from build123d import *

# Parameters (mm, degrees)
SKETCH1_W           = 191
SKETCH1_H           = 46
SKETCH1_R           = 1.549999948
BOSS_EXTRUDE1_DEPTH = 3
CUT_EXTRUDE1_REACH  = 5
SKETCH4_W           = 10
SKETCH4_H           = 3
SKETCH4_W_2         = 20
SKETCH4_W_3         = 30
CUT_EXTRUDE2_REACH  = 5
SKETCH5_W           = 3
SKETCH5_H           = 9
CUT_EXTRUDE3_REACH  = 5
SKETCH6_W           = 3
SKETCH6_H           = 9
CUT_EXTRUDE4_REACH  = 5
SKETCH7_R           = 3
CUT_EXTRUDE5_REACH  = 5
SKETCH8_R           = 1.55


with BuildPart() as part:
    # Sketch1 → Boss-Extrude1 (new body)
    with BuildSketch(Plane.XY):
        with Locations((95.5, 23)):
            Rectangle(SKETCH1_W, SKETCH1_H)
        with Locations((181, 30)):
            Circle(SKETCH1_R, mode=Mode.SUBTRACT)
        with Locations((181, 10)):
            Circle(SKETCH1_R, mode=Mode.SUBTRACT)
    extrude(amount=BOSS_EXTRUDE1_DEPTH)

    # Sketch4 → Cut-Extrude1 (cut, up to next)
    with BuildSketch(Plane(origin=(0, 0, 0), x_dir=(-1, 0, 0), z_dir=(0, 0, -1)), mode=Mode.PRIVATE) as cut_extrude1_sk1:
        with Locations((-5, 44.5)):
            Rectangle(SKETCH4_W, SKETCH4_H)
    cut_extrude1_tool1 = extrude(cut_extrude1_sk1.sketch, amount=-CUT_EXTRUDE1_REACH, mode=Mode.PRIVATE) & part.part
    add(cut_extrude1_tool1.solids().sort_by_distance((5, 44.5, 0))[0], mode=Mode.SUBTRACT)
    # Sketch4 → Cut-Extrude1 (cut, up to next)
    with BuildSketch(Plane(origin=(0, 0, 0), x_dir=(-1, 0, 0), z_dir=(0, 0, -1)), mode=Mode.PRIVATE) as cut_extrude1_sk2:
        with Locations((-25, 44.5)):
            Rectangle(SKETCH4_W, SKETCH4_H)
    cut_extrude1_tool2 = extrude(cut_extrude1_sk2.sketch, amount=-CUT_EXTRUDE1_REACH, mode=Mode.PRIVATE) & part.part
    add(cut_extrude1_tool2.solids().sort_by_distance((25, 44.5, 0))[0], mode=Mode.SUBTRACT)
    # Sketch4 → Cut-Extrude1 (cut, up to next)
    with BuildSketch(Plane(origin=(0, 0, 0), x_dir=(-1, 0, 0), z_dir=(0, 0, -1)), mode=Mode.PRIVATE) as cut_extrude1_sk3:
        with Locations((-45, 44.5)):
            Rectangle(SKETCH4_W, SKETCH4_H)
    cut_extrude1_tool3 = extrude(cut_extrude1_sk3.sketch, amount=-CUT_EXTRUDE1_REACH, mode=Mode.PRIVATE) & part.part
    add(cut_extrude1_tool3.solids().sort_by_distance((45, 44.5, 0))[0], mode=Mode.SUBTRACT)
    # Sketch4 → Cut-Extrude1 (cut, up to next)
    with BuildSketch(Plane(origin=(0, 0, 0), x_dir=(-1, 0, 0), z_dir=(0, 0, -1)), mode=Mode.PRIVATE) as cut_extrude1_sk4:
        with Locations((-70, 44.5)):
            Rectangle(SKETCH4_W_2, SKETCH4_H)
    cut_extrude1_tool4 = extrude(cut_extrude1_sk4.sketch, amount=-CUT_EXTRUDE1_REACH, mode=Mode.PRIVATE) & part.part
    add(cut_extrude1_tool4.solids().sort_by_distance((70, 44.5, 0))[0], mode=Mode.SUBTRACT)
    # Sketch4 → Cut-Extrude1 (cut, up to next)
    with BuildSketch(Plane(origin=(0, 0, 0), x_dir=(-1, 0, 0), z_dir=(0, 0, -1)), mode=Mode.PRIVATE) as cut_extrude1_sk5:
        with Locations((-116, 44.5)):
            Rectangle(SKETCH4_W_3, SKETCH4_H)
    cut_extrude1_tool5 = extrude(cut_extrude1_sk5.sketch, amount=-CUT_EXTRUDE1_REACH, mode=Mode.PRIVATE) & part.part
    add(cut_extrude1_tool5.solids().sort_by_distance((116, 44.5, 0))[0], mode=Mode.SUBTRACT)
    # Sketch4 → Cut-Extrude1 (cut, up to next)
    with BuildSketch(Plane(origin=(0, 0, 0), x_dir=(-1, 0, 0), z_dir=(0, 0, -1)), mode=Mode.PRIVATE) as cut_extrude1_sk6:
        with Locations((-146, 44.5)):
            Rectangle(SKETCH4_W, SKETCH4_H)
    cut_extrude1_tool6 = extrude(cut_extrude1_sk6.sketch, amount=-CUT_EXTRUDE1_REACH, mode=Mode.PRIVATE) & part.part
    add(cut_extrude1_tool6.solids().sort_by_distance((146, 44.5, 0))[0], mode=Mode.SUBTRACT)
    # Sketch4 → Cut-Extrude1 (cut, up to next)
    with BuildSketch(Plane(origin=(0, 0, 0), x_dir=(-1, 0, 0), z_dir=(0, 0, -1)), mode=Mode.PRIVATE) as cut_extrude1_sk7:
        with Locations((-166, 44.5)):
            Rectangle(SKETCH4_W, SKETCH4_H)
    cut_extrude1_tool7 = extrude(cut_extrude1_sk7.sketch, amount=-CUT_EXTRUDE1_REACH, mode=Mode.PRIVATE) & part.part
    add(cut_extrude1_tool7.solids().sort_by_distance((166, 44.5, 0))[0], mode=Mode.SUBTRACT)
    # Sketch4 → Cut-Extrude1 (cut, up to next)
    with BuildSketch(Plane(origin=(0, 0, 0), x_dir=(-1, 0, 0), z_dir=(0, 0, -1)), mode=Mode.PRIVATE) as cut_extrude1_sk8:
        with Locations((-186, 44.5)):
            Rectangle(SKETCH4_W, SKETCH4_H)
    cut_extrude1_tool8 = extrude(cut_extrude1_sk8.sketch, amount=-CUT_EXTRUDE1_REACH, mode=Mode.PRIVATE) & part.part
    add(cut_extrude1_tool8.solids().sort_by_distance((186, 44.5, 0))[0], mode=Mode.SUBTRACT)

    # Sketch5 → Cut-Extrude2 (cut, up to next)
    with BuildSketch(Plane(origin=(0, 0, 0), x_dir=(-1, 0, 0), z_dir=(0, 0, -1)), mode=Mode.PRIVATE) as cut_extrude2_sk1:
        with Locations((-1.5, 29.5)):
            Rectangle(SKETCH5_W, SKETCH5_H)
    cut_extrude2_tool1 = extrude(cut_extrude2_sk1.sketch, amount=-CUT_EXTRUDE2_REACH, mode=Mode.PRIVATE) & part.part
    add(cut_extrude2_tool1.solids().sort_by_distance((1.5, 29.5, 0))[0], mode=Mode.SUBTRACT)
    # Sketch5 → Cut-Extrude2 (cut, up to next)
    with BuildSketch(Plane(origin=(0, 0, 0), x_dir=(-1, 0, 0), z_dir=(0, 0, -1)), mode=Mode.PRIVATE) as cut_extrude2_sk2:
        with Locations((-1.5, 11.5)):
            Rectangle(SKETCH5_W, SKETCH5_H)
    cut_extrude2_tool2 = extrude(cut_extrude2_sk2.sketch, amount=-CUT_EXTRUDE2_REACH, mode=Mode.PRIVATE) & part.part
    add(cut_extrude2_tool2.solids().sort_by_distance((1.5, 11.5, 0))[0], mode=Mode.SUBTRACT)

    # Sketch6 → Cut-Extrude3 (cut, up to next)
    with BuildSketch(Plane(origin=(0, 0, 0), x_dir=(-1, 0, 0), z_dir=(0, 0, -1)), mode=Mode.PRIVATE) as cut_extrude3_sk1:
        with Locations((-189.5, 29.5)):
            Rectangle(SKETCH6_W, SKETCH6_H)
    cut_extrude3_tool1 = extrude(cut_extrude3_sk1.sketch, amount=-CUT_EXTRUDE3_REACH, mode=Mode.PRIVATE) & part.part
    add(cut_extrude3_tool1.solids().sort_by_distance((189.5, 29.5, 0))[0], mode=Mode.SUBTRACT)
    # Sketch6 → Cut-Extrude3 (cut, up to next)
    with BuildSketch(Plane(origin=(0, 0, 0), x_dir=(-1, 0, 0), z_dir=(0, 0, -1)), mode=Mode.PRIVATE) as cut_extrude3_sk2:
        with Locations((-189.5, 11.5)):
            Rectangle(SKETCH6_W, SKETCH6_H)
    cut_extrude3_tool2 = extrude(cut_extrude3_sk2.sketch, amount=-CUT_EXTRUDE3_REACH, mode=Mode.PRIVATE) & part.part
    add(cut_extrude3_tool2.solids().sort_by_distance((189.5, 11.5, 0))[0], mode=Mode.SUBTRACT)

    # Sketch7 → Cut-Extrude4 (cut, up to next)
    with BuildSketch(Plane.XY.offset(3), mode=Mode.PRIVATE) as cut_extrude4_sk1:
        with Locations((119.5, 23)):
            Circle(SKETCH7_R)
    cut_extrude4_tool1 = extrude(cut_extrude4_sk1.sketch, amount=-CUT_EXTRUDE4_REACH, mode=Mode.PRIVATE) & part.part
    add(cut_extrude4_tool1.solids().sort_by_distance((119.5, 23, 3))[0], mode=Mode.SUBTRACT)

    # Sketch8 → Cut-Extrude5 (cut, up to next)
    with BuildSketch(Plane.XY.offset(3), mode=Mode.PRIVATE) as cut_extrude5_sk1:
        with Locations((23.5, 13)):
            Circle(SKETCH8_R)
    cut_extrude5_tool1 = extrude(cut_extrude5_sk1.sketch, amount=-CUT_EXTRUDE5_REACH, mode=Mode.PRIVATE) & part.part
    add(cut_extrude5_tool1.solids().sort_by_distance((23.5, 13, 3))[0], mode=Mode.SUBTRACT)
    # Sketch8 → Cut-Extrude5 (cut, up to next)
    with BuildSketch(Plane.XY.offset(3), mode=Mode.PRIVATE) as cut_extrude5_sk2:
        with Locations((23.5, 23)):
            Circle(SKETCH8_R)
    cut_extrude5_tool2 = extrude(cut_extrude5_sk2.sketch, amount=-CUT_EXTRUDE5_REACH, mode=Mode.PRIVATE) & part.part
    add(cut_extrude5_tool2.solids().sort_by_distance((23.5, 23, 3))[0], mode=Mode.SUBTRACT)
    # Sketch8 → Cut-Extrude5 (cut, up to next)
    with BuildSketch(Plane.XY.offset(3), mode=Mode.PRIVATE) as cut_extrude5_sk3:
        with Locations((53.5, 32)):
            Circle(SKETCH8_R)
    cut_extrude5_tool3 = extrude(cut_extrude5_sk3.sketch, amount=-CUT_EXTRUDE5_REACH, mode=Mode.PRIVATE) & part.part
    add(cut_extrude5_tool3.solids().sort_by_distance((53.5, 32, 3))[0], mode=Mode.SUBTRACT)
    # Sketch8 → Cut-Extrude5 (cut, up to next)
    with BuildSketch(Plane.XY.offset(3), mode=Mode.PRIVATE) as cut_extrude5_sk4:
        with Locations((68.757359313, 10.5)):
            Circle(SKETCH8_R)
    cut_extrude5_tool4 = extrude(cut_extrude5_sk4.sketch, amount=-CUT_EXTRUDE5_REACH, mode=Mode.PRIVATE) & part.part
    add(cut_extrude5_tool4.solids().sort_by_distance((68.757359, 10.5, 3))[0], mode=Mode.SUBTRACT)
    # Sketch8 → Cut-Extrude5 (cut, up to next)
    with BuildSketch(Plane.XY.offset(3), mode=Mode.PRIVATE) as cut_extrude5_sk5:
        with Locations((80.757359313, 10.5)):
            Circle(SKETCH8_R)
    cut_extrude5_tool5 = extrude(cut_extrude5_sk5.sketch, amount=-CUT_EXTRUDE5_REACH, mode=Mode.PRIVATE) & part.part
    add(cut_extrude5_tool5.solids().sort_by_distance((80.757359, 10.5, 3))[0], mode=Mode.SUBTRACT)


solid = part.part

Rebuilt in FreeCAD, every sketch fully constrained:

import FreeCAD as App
import Part
import Sketcher
Q = App.Units.Quantity


def add_polygon(sketch, points):
    """Adds a closed chain of lines whose ends are joined by coincident constraints."""
    first, n = sketch.GeometryCount, len(points)
    for a, b in zip(points, points[1:] + points[:1]):
        sketch.addGeometry(Part.LineSegment(App.Vector(*a, 0), App.Vector(*b, 0)), False)
    for i in range(n):
        sketch.addConstraint(Sketcher.Constraint("Coincident", first + i, 2, first + (i + 1) % n, 1))

doc = App.newDocument("Part")
body = doc.addObject("PartDesign::Body", "Body")

sketch1 = body.newObject("Sketcher::SketchObject", "Sketch")
sketch1.AttachmentSupport = (doc.getObject("XY_Plane"), [""])
sketch1.MapMode = "FlatFace"
add_polygon(sketch1, [(0, 46), (0, 0), (191, 0), (191, 46)])
sketch1.addGeometry(Part.Circle(App.Vector(181, 10, 0), App.Vector(0, 0, 1), 1.5), False)
sketch1.addGeometry(Part.Circle(App.Vector(181, 30, 0), App.Vector(0, 0, 1), 1.5), False)
sketch1.addConstraint([
    Sketcher.Constraint("Vertical", 0),
    Sketcher.Constraint("Horizontal", 1),
    Sketcher.Constraint("Vertical", 2),
    Sketcher.Constraint("Horizontal", 3),
    Sketcher.Constraint("Coincident", 0, 2, -1, 1),
    Sketcher.Constraint("Equal", 4, 5),
    Sketcher.Constraint("Vertical", 4, 3, 5, 3),
    Sketcher.Constraint("Diameter", 4, Q("3.1 mm")),
    Sketcher.Constraint("DistanceX", 1, 1, 1, 2, Q("191 mm")),
    Sketcher.Constraint("DistanceY", 0, 2, 0, 1, Q("46 mm")),
    Sketcher.Constraint("DistanceX", -1, 1, 4, 3, Q("181 mm")),
    Sketcher.Constraint("DistanceY", -1, 1, 4, 3, Q("10 mm")),
    Sketcher.Constraint("DistanceY", -1, 1, 5, 3, Q("30 mm")),
])
pad1 = body.newObject("PartDesign::Pad", "Pad")
pad1.Profile = sketch1
pad1.Length = 3

sketch2 = body.newObject("Sketcher::SketchObject", "Sketch001")
sketch2.AttachmentSupport = (doc.getObject("XY_Plane"), [""])
sketch2.MapMode = "FlatFace"
add_polygon(sketch2, [(10, 46), (10, 43), (0, 43), (0, 46)])
sketch2.addConstraint([
    Sketcher.Constraint("Vertical", 0),
    Sketcher.Constraint("Horizontal", 1),
    Sketcher.Constraint("Vertical", 2),
    Sketcher.Constraint("Horizontal", 3),
    Sketcher.Constraint("PointOnObject", 1, 2, -2),
    Sketcher.Constraint("DistanceX", 1, 2, 1, 1, Q("10 mm")),
    Sketcher.Constraint("DistanceY", 0, 2, 0, 1, Q("3 mm")),
    Sketcher.Constraint("DistanceY", -1, 1, 0, 2, Q("43 mm")),
])
pocket1 = body.newObject("PartDesign::Pocket", "Pocket")
pocket1.Profile = sketch2
pocket1.Type = "UpToFirst"
pocket1.Reversed = True

sketch3 = body.newObject("Sketcher::SketchObject", "Sketch002")
sketch3.AttachmentSupport = (doc.getObject("XY_Plane"), [""])
sketch3.MapMode = "FlatFace"
add_polygon(sketch3, [(30, 46), (30, 43), (20, 43), (20, 46)])
sketch3.addConstraint([
    Sketcher.Constraint("Vertical", 0),
    Sketcher.Constraint("Horizontal", 1),
    Sketcher.Constraint("Vertical", 2),
    Sketcher.Constraint("Horizontal", 3),
    Sketcher.Constraint("DistanceX", 1, 2, 1, 1, Q("10 mm")),
    Sketcher.Constraint("DistanceY", 0, 2, 0, 1, Q("3 mm")),
    Sketcher.Constraint("DistanceX", -1, 1, 0, 2, Q("30 mm")),
    Sketcher.Constraint("DistanceY", -1, 1, 0, 2, Q("43 mm")),
])
pocket2 = body.newObject("PartDesign::Pocket", "Pocket001")
pocket2.Profile = sketch3
pocket2.Type = "UpToFirst"
pocket2.Reversed = True

sketch4 = body.newObject("Sketcher::SketchObject", "Sketch003")
sketch4.AttachmentSupport = (doc.getObject("XY_Plane"), [""])
sketch4.MapMode = "FlatFace"
add_polygon(sketch4, [(50, 46), (50, 43), (40, 43), (40, 46)])
sketch4.addConstraint([
    Sketcher.Constraint("Vertical", 0),
    Sketcher.Constraint("Horizontal", 1),
    Sketcher.Constraint("Vertical", 2),
    Sketcher.Constraint("Horizontal", 3),
    Sketcher.Constraint("DistanceX", 1, 2, 1, 1, Q("10 mm")),
    Sketcher.Constraint("DistanceY", 0, 2, 0, 1, Q("3 mm")),
    Sketcher.Constraint("DistanceX", -1, 1, 0, 2, Q("50 mm")),
    Sketcher.Constraint("DistanceY", -1, 1, 0, 2, Q("43 mm")),
])
pocket3 = body.newObject("PartDesign::Pocket", "Pocket002")
pocket3.Profile = sketch4
pocket3.Type = "UpToFirst"
pocket3.Reversed = True

sketch5 = body.newObject("Sketcher::SketchObject", "Sketch004")
sketch5.AttachmentSupport = (doc.getObject("XY_Plane"), [""])
sketch5.MapMode = "FlatFace"
add_polygon(sketch5, [(80, 46), (80, 43), (60, 43), (60, 46)])
sketch5.addConstraint([
    Sketcher.Constraint("Vertical", 0),
    Sketcher.Constraint("Horizontal", 1),
    Sketcher.Constraint("Vertical", 2),
    Sketcher.Constraint("Horizontal", 3),
    Sketcher.Constraint("DistanceX", 1, 2, 1, 1, Q("20 mm")),
    Sketcher.Constraint("DistanceY", 0, 2, 0, 1, Q("3 mm")),
    Sketcher.Constraint("DistanceX", -1, 1, 0, 2, Q("80 mm")),
    Sketcher.Constraint("DistanceY", -1, 1, 0, 2, Q("43 mm")),
])
pocket4 = body.newObject("PartDesign::Pocket", "Pocket003")
pocket4.Profile = sketch5
pocket4.Type = "UpToFirst"
pocket4.Reversed = True

sketch6 = body.newObject("Sketcher::SketchObject", "Sketch005")
sketch6.AttachmentSupport = (doc.getObject("XY_Plane"), [""])
sketch6.MapMode = "FlatFace"
add_polygon(sketch6, [(131, 46), (131, 43), (101, 43), (101, 46)])
sketch6.addConstraint([
    Sketcher.Constraint("Vertical", 0),
    Sketcher.Constraint("Horizontal", 1),
    Sketcher.Constraint("Vertical", 2),
    Sketcher.Constraint("Horizontal", 3),
    Sketcher.Constraint("DistanceX", 1, 2, 1, 1, Q("30 mm")),
    Sketcher.Constraint("DistanceY", 0, 2, 0, 1, Q("3 mm")),
    Sketcher.Constraint("DistanceX", -1, 1, 0, 2, Q("131 mm")),
    Sketcher.Constraint("DistanceY", -1, 1, 0, 2, Q("43 mm")),
])
pocket5 = body.newObject("PartDesign::Pocket", "Pocket004")
pocket5.Profile = sketch6
pocket5.Type = "UpToFirst"
pocket5.Reversed = True

sketch7 = body.newObject("Sketcher::SketchObject", "Sketch006")
sketch7.AttachmentSupport = (doc.getObject("XY_Plane"), [""])
sketch7.MapMode = "FlatFace"
add_polygon(sketch7, [(151, 46), (151, 43), (141, 43), (141, 46)])
sketch7.addConstraint([
    Sketcher.Constraint("Vertical", 0),
    Sketcher.Constraint("Horizontal", 1),
    Sketcher.Constraint("Vertical", 2),
    Sketcher.Constraint("Horizontal", 3),
    Sketcher.Constraint("DistanceX", 1, 2, 1, 1, Q("10 mm")),
    Sketcher.Constraint("DistanceY", 0, 2, 0, 1, Q("3 mm")),
    Sketcher.Constraint("DistanceX", -1, 1, 0, 2, Q("151 mm")),
    Sketcher.Constraint("DistanceY", -1, 1, 0, 2, Q("43 mm")),
])
pocket6 = body.newObject("PartDesign::Pocket", "Pocket005")
pocket6.Profile = sketch7
pocket6.Type = "UpToFirst"
pocket6.Reversed = True

sketch8 = body.newObject("Sketcher::SketchObject", "Sketch007")
sketch8.AttachmentSupport = (doc.getObject("XY_Plane"), [""])
sketch8.MapMode = "FlatFace"
add_polygon(sketch8, [(171, 46), (171, 43), (161, 43), (161, 46)])
sketch8.addConstraint([
    Sketcher.Constraint("Vertical", 0),
    Sketcher.Constraint("Horizontal", 1),
    Sketcher.Constraint("Vertical", 2),
    Sketcher.Constraint("Horizontal", 3),
    Sketcher.Constraint("DistanceX", 1, 2, 1, 1, Q("10 mm")),
    Sketcher.Constraint("DistanceY", 0, 2, 0, 1, Q("3 mm")),
    Sketcher.Constraint("DistanceX", -1, 1, 0, 2, Q("171 mm")),
    Sketcher.Constraint("DistanceY", -1, 1, 0, 2, Q("43 mm")),
])
pocket7 = body.newObject("PartDesign::Pocket", "Pocket006")
pocket7.Profile = sketch8
pocket7.Type = "UpToFirst"
pocket7.Reversed = True

sketch9 = body.newObject("Sketcher::SketchObject", "Sketch008")
sketch9.AttachmentSupport = (doc.getObject("XY_Plane"), [""])
sketch9.MapMode = "FlatFace"
add_polygon(sketch9, [(191, 46), (191, 43), (181, 43), (181, 46)])
sketch9.addConstraint([
    Sketcher.Constraint("Vertical", 0),
    Sketcher.Constraint("Horizontal", 1),
    Sketcher.Constraint("Vertical", 2),
    Sketcher.Constraint("Horizontal", 3),
    Sketcher.Constraint("DistanceX", 1, 2, 1, 1, Q("10 mm")),
    Sketcher.Constraint("DistanceY", 0, 2, 0, 1, Q("3 mm")),
    Sketcher.Constraint("DistanceX", -1, 1, 0, 2, Q("191 mm")),
    Sketcher.Constraint("DistanceY", -1, 1, 0, 2, Q("43 mm")),
])
pocket8 = body.newObject("PartDesign::Pocket", "Pocket007")
pocket8.Profile = sketch9
pocket8.Type = "UpToFirst"
pocket8.Reversed = True

sketch10 = body.newObject("Sketcher::SketchObject", "Sketch009")
sketch10.AttachmentSupport = (doc.getObject("XY_Plane"), [""])
sketch10.MapMode = "FlatFace"
add_polygon(sketch10, [(3, 34), (3, 25), (0, 25), (0, 34)])
sketch10.addConstraint([
    Sketcher.Constraint("Vertical", 0),
    Sketcher.Constraint("Horizontal", 1),
    Sketcher.Constraint("Vertical", 2),
    Sketcher.Constraint("Horizontal", 3),
    Sketcher.Constraint("PointOnObject", 1, 2, -2),
    Sketcher.Constraint("DistanceX", 1, 2, 1, 1, Q("3 mm")),
    Sketcher.Constraint("DistanceY", 0, 2, 0, 1, Q("9 mm")),
    Sketcher.Constraint("DistanceY", -1, 1, 0, 2, Q("25 mm")),
])
pocket9 = body.newObject("PartDesign::Pocket", "Pocket008")
pocket9.Profile = sketch10
pocket9.Type = "UpToFirst"
pocket9.Reversed = True

sketch11 = body.newObject("Sketcher::SketchObject", "Sketch010")
sketch11.AttachmentSupport = (doc.getObject("XY_Plane"), [""])
sketch11.MapMode = "FlatFace"
add_polygon(sketch11, [(3, 16), (3, 7), (0, 7), (0, 16)])
sketch11.addConstraint([
    Sketcher.Constraint("Vertical", 0),
    Sketcher.Constraint("Horizontal", 1),
    Sketcher.Constraint("Vertical", 2),
    Sketcher.Constraint("Horizontal", 3),
    Sketcher.Constraint("PointOnObject", 1, 2, -2),
    Sketcher.Constraint("DistanceX", 1, 2, 1, 1, Q("3 mm")),
    Sketcher.Constraint("DistanceY", 0, 2, 0, 1, Q("9 mm")),
    Sketcher.Constraint("DistanceY", -1, 1, 0, 2, Q("7 mm")),
])
pocket10 = body.newObject("PartDesign::Pocket", "Pocket009")
pocket10.Profile = sketch11
pocket10.Type = "UpToFirst"
pocket10.Reversed = True

sketch12 = body.newObject("Sketcher::SketchObject", "Sketch011")
sketch12.AttachmentSupport = (doc.getObject("XY_Plane"), [""])
sketch12.MapMode = "FlatFace"
add_polygon(sketch12, [(191, 34), (191, 25), (188, 25), (188, 34)])
sketch12.addConstraint([
    Sketcher.Constraint("Vertical", 0),
    Sketcher.Constraint("Horizontal", 1),
    Sketcher.Constraint("Vertical", 2),
    Sketcher.Constraint("Horizontal", 3),
    Sketcher.Constraint("DistanceX", 1, 2, 1, 1, Q("3 mm")),
    Sketcher.Constraint("DistanceY", 0, 2, 0, 1, Q("9 mm")),
    Sketcher.Constraint("DistanceX", -1, 1, 0, 2, Q("191 mm")),
    Sketcher.Constraint("DistanceY", -1, 1, 0, 2, Q("25 mm")),
])
pocket11 = body.newObject("PartDesign::Pocket", "Pocket010")
pocket11.Profile = sketch12
pocket11.Type = "UpToFirst"
pocket11.Reversed = True

sketch13 = body.newObject("Sketcher::SketchObject", "Sketch012")
sketch13.AttachmentSupport = (doc.getObject("XY_Plane"), [""])
sketch13.MapMode = "FlatFace"
add_polygon(sketch13, [(191, 16), (191, 7), (188, 7), (188, 16)])
sketch13.addConstraint([
    Sketcher.Constraint("Vertical", 0),
    Sketcher.Constraint("Horizontal", 1),
    Sketcher.Constraint("Vertical", 2),
    Sketcher.Constraint("Horizontal", 3),
    Sketcher.Constraint("DistanceX", 1, 2, 1, 1, Q("3 mm")),
    Sketcher.Constraint("DistanceY", 0, 2, 0, 1, Q("9 mm")),
    Sketcher.Constraint("DistanceX", -1, 1, 0, 2, Q("191 mm")),
    Sketcher.Constraint("DistanceY", -1, 1, 0, 2, Q("7 mm")),
])
pocket12 = body.newObject("PartDesign::Pocket", "Pocket011")
pocket12.Profile = sketch13
pocket12.Type = "UpToFirst"
pocket12.Reversed = True

sketch14 = body.newObject("Sketcher::SketchObject", "Sketch013")
sketch14.AttachmentSupport = (doc.getObject("XY_Plane"), [""])
sketch14.MapMode = "FlatFace"
sketch14.AttachmentOffset = App.Placement(App.Vector(0, 0, 3), App.Rotation())
sketch14.addGeometry(Part.Circle(App.Vector(119.5, 23, 0), App.Vector(0, 0, 1), 3), False)
sketch14.addConstraint([
    Sketcher.Constraint("Diameter", 0, Q("6 mm")),
    Sketcher.Constraint("DistanceY", -1, 1, 0, 3, Q("23 mm")),
    Sketcher.Constraint("DistanceX", -1, 1, 0, 3, Q("119.5 mm")),
])
pocket13 = body.newObject("PartDesign::Pocket", "Pocket012")
pocket13.Profile = sketch14
pocket13.Type = "UpToFirst"

sketch15 = body.newObject("Sketcher::SketchObject", "Sketch014")
sketch15.AttachmentSupport = (doc.getObject("XY_Plane"), [""])
sketch15.MapMode = "FlatFace"
sketch15.AttachmentOffset = App.Placement(App.Vector(0, 0, 3), App.Rotation())
sketch15.addGeometry(Part.Circle(App.Vector(23.5, 13, 0), App.Vector(0, 0, 1), 1.6), False)
sketch15.addConstraint([
    Sketcher.Constraint("Diameter", 0, Q("3.1 mm")),
    Sketcher.Constraint("DistanceY", -1, 1, 0, 3, Q("13 mm")),
    Sketcher.Constraint("DistanceX", -1, 1, 0, 3, Q("23.5 mm")),
])
pocket14 = body.newObject("PartDesign::Pocket", "Pocket013")
pocket14.Profile = sketch15
pocket14.Type = "UpToFirst"

sketch16 = body.newObject("Sketcher::SketchObject", "Sketch015")
sketch16.AttachmentSupport = (doc.getObject("XY_Plane"), [""])
sketch16.MapMode = "FlatFace"
sketch16.AttachmentOffset = App.Placement(App.Vector(0, 0, 3), App.Rotation())
sketch16.addGeometry(Part.Circle(App.Vector(23.5, 23, 0), App.Vector(0, 0, 1), 1.6), False)
sketch16.addConstraint([
    Sketcher.Constraint("Diameter", 0, Q("3.1 mm")),
    Sketcher.Constraint("DistanceY", -1, 1, 0, 3, Q("23 mm")),
    Sketcher.Constraint("DistanceX", -1, 1, 0, 3, Q("23.5 mm")),
])
pocket15 = body.newObject("PartDesign::Pocket", "Pocket014")
pocket15.Profile = sketch16
pocket15.Type = "UpToFirst"

sketch17 = body.newObject("Sketcher::SketchObject", "Sketch016")
sketch17.AttachmentSupport = (doc.getObject("XY_Plane"), [""])
sketch17.MapMode = "FlatFace"
sketch17.AttachmentOffset = App.Placement(App.Vector(0, 0, 3), App.Rotation())
sketch17.addGeometry(Part.Circle(App.Vector(53.5, 32, 0), App.Vector(0, 0, 1), 1.6), False)
sketch17.addConstraint([
    Sketcher.Constraint("Diameter", 0, Q("3.1 mm")),
    Sketcher.Constraint("DistanceY", -1, 1, 0, 3, Q("32 mm")),
    Sketcher.Constraint("DistanceX", -1, 1, 0, 3, Q("53.5 mm")),
])
pocket16 = body.newObject("PartDesign::Pocket", "Pocket015")
pocket16.Profile = sketch17
pocket16.Type = "UpToFirst"

sketch18 = body.newObject("Sketcher::SketchObject", "Sketch017")
sketch18.AttachmentSupport = (doc.getObject("XY_Plane"), [""])
sketch18.MapMode = "FlatFace"
sketch18.AttachmentOffset = App.Placement(App.Vector(0, 0, 3), App.Rotation())
sketch18.addGeometry(Part.Circle(App.Vector(68.8, 10.5, 0), App.Vector(0, 0, 1), 1.6), False)
sketch18.addConstraint([
    Sketcher.Constraint("Diameter", 0, Q("3.1 mm")),
    Sketcher.Constraint("DistanceY", -1, 1, 0, 3, Q("10.5 mm")),
    Sketcher.Constraint("DistanceX", -1, 1, 0, 3, Q("68.757359 mm")),
])
pocket17 = body.newObject("PartDesign::Pocket", "Pocket016")
pocket17.Profile = sketch18
pocket17.Type = "UpToFirst"

sketch19 = body.newObject("Sketcher::SketchObject", "Sketch018")
sketch19.AttachmentSupport = (doc.getObject("XY_Plane"), [""])
sketch19.MapMode = "FlatFace"
sketch19.AttachmentOffset = App.Placement(App.Vector(0, 0, 3), App.Rotation())
sketch19.addGeometry(Part.Circle(App.Vector(80.8, 10.5, 0), App.Vector(0, 0, 1), 1.6), False)
sketch19.addConstraint([
    Sketcher.Constraint("Diameter", 0, Q("3.1 mm")),
    Sketcher.Constraint("DistanceY", -1, 1, 0, 3, Q("10.5 mm")),
    Sketcher.Constraint("DistanceX", -1, 1, 0, 3, Q("80.757359 mm")),
])
pocket18 = body.newObject("PartDesign::Pocket", "Pocket017")
pocket18.Profile = sketch19
pocket18.Type = "UpToFirst"

doc.recompute()
